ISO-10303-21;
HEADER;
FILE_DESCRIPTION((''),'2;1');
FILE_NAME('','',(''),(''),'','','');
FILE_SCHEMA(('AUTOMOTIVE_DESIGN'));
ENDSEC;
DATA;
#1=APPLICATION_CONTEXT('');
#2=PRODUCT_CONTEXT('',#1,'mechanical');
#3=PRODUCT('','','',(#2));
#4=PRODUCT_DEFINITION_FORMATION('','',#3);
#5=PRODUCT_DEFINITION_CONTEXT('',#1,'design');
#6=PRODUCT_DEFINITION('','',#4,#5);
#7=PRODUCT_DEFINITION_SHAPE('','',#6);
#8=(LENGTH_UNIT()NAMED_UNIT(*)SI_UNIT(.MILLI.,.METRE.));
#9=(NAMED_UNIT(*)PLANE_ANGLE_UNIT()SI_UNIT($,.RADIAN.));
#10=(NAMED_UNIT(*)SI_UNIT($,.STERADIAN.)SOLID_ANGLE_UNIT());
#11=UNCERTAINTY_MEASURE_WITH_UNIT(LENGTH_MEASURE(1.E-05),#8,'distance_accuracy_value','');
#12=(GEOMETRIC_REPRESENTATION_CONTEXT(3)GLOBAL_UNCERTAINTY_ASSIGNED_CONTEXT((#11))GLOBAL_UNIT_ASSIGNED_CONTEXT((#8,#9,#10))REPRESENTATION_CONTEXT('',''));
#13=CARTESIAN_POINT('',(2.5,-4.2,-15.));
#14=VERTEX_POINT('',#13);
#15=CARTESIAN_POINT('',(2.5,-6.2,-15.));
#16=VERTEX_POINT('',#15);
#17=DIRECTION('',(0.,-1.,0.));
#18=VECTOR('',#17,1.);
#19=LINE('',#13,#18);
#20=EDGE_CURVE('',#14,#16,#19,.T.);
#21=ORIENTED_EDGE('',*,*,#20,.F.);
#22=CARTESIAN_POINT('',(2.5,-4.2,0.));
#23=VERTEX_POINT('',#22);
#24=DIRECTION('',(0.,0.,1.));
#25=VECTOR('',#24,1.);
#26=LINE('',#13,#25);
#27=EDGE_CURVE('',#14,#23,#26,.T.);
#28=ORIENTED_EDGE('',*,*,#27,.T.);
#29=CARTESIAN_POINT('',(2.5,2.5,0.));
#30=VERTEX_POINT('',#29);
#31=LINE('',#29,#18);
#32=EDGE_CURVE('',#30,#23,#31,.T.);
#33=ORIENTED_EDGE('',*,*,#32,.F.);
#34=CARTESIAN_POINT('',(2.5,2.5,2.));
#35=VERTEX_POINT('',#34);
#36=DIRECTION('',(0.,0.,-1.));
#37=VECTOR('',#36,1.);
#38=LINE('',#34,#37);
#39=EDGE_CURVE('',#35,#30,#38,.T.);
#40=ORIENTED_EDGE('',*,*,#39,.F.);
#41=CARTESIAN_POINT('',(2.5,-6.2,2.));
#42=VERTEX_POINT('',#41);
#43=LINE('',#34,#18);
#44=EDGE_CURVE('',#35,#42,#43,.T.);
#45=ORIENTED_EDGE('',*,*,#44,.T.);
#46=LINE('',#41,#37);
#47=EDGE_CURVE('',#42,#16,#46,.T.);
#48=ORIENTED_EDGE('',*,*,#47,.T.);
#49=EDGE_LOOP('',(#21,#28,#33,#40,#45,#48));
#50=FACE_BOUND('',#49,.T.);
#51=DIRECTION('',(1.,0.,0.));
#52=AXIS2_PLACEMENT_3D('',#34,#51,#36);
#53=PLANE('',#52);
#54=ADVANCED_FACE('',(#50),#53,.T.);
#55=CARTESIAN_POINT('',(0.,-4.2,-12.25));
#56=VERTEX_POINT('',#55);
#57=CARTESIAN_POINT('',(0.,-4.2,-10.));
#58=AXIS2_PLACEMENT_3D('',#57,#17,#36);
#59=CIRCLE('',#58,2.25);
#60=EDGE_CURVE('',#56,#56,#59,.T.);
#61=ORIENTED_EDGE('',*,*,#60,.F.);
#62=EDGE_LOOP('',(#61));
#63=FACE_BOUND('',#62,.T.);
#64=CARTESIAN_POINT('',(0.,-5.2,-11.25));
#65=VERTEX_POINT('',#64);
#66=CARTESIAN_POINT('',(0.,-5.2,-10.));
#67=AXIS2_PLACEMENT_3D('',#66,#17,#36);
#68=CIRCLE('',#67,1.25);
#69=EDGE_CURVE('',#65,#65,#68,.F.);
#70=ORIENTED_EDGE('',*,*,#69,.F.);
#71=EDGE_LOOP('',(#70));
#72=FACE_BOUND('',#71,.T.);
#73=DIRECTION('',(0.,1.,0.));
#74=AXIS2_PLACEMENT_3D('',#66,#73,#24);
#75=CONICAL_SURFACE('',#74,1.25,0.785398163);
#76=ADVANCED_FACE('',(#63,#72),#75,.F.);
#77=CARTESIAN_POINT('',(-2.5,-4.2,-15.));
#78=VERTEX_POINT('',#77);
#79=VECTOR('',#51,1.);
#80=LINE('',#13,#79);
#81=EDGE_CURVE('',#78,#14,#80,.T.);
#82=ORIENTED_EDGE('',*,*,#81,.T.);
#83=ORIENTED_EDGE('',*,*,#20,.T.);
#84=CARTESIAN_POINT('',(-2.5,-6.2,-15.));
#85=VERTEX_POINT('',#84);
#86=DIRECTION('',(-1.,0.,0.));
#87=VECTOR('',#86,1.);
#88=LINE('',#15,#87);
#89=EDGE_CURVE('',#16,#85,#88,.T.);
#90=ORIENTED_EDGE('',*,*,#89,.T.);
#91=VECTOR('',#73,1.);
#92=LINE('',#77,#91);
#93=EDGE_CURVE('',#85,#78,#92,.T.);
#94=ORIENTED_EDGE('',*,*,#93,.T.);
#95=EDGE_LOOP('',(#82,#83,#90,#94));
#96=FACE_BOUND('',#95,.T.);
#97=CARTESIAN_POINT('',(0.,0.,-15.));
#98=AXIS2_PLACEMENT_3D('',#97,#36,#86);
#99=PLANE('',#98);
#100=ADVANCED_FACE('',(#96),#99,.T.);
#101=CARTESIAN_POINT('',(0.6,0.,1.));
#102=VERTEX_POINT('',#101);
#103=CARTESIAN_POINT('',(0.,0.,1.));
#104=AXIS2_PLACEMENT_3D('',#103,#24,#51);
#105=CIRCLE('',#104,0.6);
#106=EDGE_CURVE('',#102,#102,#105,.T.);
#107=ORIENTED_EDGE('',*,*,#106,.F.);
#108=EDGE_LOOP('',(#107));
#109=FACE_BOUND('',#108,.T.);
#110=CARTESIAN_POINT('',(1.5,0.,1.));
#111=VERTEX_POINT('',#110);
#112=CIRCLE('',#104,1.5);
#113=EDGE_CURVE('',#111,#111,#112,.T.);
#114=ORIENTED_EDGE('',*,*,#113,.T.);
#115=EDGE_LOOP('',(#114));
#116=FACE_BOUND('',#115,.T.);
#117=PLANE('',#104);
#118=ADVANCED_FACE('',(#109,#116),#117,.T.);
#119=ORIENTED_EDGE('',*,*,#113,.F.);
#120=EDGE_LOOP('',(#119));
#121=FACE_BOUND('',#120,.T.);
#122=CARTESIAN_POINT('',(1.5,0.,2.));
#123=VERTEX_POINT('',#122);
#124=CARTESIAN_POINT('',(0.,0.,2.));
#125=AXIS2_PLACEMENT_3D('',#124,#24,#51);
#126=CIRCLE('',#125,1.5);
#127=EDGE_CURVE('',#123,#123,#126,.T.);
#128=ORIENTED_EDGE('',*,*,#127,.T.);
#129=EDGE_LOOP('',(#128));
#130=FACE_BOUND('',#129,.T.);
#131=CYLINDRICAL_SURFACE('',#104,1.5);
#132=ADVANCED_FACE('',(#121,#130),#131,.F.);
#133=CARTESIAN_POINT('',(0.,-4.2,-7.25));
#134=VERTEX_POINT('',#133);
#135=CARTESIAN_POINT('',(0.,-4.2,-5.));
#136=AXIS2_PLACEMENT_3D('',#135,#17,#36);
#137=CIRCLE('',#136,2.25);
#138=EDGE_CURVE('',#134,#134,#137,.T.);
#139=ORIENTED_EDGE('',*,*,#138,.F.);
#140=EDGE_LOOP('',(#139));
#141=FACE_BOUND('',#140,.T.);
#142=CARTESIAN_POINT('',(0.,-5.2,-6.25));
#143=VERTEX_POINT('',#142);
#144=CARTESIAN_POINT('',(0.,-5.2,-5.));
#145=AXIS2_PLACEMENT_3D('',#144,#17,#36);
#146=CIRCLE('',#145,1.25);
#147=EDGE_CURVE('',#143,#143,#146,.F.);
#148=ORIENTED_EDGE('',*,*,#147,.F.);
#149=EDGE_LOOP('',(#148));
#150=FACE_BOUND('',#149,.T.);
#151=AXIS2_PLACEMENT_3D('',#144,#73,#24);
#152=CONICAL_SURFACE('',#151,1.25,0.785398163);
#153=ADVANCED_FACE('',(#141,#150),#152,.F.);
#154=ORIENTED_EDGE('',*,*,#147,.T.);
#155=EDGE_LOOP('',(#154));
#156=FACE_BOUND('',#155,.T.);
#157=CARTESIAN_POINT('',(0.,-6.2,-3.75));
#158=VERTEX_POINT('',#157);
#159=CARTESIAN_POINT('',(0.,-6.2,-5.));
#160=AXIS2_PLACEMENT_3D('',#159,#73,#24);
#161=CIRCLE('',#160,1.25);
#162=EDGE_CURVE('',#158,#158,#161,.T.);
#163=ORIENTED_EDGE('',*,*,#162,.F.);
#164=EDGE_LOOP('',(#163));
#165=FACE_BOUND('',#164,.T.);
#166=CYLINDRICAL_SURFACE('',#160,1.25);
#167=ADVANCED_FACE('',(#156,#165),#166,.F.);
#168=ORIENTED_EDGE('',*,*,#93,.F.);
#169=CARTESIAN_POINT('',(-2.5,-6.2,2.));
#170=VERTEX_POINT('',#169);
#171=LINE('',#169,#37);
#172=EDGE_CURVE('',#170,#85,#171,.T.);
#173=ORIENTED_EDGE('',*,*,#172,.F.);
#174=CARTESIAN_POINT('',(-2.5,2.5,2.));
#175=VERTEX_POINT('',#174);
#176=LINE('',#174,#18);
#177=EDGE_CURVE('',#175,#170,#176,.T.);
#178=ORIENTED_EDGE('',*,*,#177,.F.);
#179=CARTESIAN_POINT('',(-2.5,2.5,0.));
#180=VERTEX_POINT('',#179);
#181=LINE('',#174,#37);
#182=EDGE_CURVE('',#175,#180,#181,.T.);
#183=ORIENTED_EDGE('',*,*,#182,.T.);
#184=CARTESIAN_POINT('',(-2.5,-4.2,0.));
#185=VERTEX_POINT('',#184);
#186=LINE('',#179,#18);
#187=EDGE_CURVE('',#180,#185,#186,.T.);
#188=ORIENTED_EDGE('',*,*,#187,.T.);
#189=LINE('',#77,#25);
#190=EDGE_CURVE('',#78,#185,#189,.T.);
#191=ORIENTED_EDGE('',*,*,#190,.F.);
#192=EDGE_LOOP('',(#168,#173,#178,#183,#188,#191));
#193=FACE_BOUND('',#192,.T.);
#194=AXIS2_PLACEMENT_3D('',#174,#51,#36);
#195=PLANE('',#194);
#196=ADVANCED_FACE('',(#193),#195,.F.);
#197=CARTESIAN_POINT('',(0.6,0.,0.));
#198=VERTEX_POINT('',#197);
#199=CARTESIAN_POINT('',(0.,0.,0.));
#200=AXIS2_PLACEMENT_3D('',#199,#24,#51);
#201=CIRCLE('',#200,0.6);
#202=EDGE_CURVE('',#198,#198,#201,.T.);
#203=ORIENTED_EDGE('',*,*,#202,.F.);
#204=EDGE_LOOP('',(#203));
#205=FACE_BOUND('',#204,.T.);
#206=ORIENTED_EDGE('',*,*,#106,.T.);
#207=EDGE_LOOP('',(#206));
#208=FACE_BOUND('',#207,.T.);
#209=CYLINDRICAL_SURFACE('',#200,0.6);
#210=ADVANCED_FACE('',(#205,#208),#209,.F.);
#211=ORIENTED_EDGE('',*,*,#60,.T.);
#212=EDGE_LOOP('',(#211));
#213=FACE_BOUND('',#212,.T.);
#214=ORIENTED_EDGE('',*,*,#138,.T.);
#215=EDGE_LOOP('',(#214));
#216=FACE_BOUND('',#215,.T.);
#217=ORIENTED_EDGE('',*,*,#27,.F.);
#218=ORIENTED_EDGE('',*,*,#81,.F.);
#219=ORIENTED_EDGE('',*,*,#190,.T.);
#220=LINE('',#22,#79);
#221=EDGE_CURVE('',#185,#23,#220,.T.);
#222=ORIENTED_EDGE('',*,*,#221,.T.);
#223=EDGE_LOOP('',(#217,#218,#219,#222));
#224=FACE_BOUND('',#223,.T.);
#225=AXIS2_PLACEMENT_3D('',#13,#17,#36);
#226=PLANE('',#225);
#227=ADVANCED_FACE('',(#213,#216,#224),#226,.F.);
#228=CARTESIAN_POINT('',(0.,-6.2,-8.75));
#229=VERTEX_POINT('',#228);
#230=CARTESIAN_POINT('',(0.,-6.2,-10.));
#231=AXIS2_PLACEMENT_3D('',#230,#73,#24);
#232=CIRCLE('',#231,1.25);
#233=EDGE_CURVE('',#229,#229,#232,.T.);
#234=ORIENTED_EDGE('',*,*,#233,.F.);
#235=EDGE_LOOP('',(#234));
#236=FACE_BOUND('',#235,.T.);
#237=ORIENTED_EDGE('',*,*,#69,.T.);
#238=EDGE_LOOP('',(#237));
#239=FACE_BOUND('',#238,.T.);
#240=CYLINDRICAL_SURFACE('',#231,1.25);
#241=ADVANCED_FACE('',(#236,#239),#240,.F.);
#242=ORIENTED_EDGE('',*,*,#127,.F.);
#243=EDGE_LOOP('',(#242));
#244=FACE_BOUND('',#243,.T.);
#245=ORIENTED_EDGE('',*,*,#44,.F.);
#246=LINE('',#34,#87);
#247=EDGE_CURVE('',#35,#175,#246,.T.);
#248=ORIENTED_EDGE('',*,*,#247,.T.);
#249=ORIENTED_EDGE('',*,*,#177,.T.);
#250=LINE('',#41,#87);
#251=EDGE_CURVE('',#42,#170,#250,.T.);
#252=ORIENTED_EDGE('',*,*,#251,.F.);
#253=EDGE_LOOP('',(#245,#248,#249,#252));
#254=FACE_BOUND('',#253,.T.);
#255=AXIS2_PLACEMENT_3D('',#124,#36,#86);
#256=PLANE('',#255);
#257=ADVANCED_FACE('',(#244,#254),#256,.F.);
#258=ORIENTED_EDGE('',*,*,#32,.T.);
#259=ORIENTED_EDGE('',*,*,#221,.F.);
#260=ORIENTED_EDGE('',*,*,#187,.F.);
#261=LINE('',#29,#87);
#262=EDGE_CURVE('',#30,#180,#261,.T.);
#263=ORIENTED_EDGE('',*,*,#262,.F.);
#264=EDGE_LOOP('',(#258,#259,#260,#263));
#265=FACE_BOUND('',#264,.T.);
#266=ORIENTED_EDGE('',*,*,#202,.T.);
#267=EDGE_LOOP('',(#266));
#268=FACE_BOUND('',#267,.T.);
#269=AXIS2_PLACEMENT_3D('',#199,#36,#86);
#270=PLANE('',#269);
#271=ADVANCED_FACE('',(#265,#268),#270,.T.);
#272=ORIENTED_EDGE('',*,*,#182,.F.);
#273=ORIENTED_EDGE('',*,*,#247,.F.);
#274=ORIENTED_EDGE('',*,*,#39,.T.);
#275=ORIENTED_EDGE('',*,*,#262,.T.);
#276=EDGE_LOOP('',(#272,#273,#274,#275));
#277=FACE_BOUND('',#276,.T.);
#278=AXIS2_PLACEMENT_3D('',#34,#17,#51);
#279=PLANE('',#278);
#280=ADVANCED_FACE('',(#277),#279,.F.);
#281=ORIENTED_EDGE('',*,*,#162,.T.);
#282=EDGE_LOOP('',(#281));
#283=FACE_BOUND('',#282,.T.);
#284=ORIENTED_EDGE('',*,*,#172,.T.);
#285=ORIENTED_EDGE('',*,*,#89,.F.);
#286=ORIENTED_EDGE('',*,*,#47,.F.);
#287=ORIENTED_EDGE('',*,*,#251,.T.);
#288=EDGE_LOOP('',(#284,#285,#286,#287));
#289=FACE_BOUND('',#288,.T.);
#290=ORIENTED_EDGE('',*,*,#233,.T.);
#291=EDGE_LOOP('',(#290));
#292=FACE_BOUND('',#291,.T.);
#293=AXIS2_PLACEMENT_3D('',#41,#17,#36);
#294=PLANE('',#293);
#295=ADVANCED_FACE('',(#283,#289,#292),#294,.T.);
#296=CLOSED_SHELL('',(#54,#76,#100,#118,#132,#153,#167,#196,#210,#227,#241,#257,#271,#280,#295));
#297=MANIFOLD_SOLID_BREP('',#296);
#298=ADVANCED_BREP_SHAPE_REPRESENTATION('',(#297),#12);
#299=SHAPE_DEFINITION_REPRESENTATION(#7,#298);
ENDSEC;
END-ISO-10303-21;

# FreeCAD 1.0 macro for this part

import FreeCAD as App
import Part
import Sketcher
Q = App.Units.Quantity


def edges_at(feature, points):
    """Names of the edges that pass closest to the given points."""
    edges = feature.Shape.Edges
    near = lambda p: min(range(len(edges)), key=lambda i: edges[i].distToShape(Part.Vertex(*p))[0])
    return sorted({f"Edge{near(p) + 1}" for p in points})

doc = App.newDocument("Part")
body = doc.addObject("PartDesign::Body", "Body")

sketch1 = doc.addObject("Sketcher::SketchObject", "Sketch")
body.addObject(sketch1)
sketch1.AttachmentSupport = (doc.XY_Plane, [""])
sketch1.MapMode = "FlatFace"
sketch1.addGeometry([
    Part.LineSegment(App.Vector(-2, 2, 0), App.Vector(-2, -6, 0)),
    Part.LineSegment(App.Vector(-2, -6, 0), App.Vector(2, -6, 0)),
    Part.LineSegment(App.Vector(2, -6, 0), App.Vector(2, 2, 0)),
    Part.LineSegment(App.Vector(2, 2, 0), App.Vector(-2, 2, 0)),
], False)
sketch1.addConstraint([
    Sketcher.Constraint("Coincident", 0, 2, 1, 1),
    Sketcher.Constraint("Coincident", 1, 2, 2, 1),
    Sketcher.Constraint("Coincident", 2, 2, 3, 1),
    Sketcher.Constraint("Coincident", 3, 2, 0, 1),
    Sketcher.Constraint("Vertical", 0),
    Sketcher.Constraint("Horizontal", 1),
    Sketcher.Constraint("Vertical", 2),
    Sketcher.Constraint("Horizontal", 3),
    Sketcher.Constraint("DistanceX", 1, 1, 1, 2, Q("5 mm")),
    Sketcher.Constraint("DistanceY", 0, 2, 0, 1, Q("8.7 mm")),
    Sketcher.Constraint("DistanceX", 0, 2, -1, 1, Q("2.5 mm")),
    Sketcher.Constraint("DistanceY", 0, 2, -1, 1, Q("6.2 mm")),
])
pad1 = doc.addObject("PartDesign::Pad", "Pad")
body.addObject(pad1)
pad1.Profile = sketch1
pad1.Length = 2

sketch2 = doc.addObject("Sketcher::SketchObject", "Sketch001")
body.addObject(sketch2)
sketch2.AttachmentSupport = (doc.XY_Plane, [""])
sketch2.MapMode = "FlatFace"
sketch2.AttachmentOffset = App.Placement(App.Vector(0, 0, 2), App.Rotation())
sketch2.addGeometry(Part.Circle(App.Vector(0, 0, 0), App.Vector(0, 0, 1), 1.5), False)
sketch2.addConstraint([
    Sketcher.Constraint("Coincident", 0, 3, -1, 1),
    Sketcher.Constraint("Diameter", 0, Q("3 mm")),
])
pocket1 = doc.addObject("PartDesign::Pocket", "Pocket")
body.addObject(pocket1)
pocket1.Profile = sketch2
pocket1.Length = 1

sketch3 = doc.addObject("Sketcher::SketchObject", "Sketch002")
body.addObject(sketch3)
sketch3.AttachmentSupport = (doc.XY_Plane, [""])
sketch3.MapMode = "FlatFace"
sketch3.AttachmentOffset = App.Placement(App.Vector(0, 0, 1), App.Rotation())
sketch3.addGeometry(Part.Circle(App.Vector(0, 0, 0), App.Vector(0, 0, 1), 0.6), False)
sketch3.addConstraint([
    Sketcher.Constraint("Coincident", 0, 3, -1, 1),
    Sketcher.Constraint("Diameter", 0, Q("1.2 mm")),
])
pocket2 = doc.addObject("PartDesign::Pocket", "Pocket001")
body.addObject(pocket2)
pocket2.Profile = sketch3
pocket2.Length = 1

sketch4 = doc.addObject("Sketcher::SketchObject", "Sketch003")
body.addObject(sketch4)
sketch4.AttachmentSupport = (doc.XY_Plane, [""])
sketch4.MapMode = "FlatFace"
sketch4.addGeometry([
    Part.LineSegment(App.Vector(2.5, -4.2, 0), App.Vector(2.5, -6.2, 0)),
    Part.LineSegment(App.Vector(2.5, -6.2, 0), App.Vector(-2.5, -6.2, 0)),
    Part.LineSegment(App.Vector(-2.5, -6.2, 0), App.Vector(-2.5, -4.2, 0)),
    Part.LineSegment(App.Vector(-2.5, -4.2, 0), App.Vector(2.5, -4.2, 0)),
], False)
sketch4.addConstraint([
    Sketcher.Constraint("Coincident", 0, 2, 1, 1),
    Sketcher.Constraint("Coincident", 1, 2, 2, 1),
    Sketcher.Constraint("Coincident", 2, 2, 3, 1),
    Sketcher.Constraint("Coincident", 3, 2, 0, 1),
    Sketcher.Constraint("Vertical", 0),
    Sketcher.Constraint("Horizontal", 1),
    Sketcher.Constraint("Vertical", 2),
    Sketcher.Constraint("Horizontal", 3),
    Sketcher.Constraint("DistanceX", 1, 2, 1, 1, Q("5 mm")),
    Sketcher.Constraint("DistanceY", 0, 2, 0, 1, Q("2 mm")),
    Sketcher.Constraint("DistanceX", -1, 1, 0, 2, Q("2.5 mm")),
    Sketcher.Constraint("DistanceY", 0, 2, -1, 1, Q("6.2 mm")),
])
pad2 = doc.addObject("PartDesign::Pad", "Pad001")
body.addObject(pad2)
pad2.Profile = sketch4
pad2.Length = 15
pad2.Reversed = True

sketch5 = doc.addObject("Sketcher::SketchObject", "Sketch004")
body.addObject(sketch5)
sketch5.AttachmentSupport = (doc.XZ_Plane, [""])
sketch5.MapMode = "FlatFace"
sketch5.AttachmentOffset = App.Placement(App.Vector(0, 0, 4.2), App.Rotation())
sketch5.addGeometry([
    Part.Circle(App.Vector(0, -10, 0), App.Vector(0, 0, 1), 1.2),
    Part.Circle(App.Vector(0, -5, 0), App.Vector(0, 0, 1), 1.2),
], False)
sketch5.addConstraint([
    Sketcher.Constraint("Equal", 0, 1),
    Sketcher.Constraint("PointOnObject", 0, 3, -2),
    Sketcher.Constraint("PointOnObject", 1, 3, -2),
    Sketcher.Constraint("Diameter", 0, Q("2.5 mm")),
    Sketcher.Constraint("DistanceY", 0, 3, -1, 1, Q("10 mm")),
    Sketcher.Constraint("DistanceY", 1, 3, -1, 1, Q("5 mm")),
])
pocket3 = doc.addObject("PartDesign::Pocket", "Pocket002")
body.addObject(pocket3)
pocket3.Profile = sketch5
pocket3.Length = 2
pocket3.Reversed = True
doc.recompute()

chamfer = doc.addObject("PartDesign::Chamfer", "Chamfer")
body.addObject(chamfer)
chamfer.Base = (pocket3, edges_at(pocket3, [(-1.25, -4.2, -10), (-1.25, -4.2, -5)]))
chamfer.Size = 1

doc.recompute()
